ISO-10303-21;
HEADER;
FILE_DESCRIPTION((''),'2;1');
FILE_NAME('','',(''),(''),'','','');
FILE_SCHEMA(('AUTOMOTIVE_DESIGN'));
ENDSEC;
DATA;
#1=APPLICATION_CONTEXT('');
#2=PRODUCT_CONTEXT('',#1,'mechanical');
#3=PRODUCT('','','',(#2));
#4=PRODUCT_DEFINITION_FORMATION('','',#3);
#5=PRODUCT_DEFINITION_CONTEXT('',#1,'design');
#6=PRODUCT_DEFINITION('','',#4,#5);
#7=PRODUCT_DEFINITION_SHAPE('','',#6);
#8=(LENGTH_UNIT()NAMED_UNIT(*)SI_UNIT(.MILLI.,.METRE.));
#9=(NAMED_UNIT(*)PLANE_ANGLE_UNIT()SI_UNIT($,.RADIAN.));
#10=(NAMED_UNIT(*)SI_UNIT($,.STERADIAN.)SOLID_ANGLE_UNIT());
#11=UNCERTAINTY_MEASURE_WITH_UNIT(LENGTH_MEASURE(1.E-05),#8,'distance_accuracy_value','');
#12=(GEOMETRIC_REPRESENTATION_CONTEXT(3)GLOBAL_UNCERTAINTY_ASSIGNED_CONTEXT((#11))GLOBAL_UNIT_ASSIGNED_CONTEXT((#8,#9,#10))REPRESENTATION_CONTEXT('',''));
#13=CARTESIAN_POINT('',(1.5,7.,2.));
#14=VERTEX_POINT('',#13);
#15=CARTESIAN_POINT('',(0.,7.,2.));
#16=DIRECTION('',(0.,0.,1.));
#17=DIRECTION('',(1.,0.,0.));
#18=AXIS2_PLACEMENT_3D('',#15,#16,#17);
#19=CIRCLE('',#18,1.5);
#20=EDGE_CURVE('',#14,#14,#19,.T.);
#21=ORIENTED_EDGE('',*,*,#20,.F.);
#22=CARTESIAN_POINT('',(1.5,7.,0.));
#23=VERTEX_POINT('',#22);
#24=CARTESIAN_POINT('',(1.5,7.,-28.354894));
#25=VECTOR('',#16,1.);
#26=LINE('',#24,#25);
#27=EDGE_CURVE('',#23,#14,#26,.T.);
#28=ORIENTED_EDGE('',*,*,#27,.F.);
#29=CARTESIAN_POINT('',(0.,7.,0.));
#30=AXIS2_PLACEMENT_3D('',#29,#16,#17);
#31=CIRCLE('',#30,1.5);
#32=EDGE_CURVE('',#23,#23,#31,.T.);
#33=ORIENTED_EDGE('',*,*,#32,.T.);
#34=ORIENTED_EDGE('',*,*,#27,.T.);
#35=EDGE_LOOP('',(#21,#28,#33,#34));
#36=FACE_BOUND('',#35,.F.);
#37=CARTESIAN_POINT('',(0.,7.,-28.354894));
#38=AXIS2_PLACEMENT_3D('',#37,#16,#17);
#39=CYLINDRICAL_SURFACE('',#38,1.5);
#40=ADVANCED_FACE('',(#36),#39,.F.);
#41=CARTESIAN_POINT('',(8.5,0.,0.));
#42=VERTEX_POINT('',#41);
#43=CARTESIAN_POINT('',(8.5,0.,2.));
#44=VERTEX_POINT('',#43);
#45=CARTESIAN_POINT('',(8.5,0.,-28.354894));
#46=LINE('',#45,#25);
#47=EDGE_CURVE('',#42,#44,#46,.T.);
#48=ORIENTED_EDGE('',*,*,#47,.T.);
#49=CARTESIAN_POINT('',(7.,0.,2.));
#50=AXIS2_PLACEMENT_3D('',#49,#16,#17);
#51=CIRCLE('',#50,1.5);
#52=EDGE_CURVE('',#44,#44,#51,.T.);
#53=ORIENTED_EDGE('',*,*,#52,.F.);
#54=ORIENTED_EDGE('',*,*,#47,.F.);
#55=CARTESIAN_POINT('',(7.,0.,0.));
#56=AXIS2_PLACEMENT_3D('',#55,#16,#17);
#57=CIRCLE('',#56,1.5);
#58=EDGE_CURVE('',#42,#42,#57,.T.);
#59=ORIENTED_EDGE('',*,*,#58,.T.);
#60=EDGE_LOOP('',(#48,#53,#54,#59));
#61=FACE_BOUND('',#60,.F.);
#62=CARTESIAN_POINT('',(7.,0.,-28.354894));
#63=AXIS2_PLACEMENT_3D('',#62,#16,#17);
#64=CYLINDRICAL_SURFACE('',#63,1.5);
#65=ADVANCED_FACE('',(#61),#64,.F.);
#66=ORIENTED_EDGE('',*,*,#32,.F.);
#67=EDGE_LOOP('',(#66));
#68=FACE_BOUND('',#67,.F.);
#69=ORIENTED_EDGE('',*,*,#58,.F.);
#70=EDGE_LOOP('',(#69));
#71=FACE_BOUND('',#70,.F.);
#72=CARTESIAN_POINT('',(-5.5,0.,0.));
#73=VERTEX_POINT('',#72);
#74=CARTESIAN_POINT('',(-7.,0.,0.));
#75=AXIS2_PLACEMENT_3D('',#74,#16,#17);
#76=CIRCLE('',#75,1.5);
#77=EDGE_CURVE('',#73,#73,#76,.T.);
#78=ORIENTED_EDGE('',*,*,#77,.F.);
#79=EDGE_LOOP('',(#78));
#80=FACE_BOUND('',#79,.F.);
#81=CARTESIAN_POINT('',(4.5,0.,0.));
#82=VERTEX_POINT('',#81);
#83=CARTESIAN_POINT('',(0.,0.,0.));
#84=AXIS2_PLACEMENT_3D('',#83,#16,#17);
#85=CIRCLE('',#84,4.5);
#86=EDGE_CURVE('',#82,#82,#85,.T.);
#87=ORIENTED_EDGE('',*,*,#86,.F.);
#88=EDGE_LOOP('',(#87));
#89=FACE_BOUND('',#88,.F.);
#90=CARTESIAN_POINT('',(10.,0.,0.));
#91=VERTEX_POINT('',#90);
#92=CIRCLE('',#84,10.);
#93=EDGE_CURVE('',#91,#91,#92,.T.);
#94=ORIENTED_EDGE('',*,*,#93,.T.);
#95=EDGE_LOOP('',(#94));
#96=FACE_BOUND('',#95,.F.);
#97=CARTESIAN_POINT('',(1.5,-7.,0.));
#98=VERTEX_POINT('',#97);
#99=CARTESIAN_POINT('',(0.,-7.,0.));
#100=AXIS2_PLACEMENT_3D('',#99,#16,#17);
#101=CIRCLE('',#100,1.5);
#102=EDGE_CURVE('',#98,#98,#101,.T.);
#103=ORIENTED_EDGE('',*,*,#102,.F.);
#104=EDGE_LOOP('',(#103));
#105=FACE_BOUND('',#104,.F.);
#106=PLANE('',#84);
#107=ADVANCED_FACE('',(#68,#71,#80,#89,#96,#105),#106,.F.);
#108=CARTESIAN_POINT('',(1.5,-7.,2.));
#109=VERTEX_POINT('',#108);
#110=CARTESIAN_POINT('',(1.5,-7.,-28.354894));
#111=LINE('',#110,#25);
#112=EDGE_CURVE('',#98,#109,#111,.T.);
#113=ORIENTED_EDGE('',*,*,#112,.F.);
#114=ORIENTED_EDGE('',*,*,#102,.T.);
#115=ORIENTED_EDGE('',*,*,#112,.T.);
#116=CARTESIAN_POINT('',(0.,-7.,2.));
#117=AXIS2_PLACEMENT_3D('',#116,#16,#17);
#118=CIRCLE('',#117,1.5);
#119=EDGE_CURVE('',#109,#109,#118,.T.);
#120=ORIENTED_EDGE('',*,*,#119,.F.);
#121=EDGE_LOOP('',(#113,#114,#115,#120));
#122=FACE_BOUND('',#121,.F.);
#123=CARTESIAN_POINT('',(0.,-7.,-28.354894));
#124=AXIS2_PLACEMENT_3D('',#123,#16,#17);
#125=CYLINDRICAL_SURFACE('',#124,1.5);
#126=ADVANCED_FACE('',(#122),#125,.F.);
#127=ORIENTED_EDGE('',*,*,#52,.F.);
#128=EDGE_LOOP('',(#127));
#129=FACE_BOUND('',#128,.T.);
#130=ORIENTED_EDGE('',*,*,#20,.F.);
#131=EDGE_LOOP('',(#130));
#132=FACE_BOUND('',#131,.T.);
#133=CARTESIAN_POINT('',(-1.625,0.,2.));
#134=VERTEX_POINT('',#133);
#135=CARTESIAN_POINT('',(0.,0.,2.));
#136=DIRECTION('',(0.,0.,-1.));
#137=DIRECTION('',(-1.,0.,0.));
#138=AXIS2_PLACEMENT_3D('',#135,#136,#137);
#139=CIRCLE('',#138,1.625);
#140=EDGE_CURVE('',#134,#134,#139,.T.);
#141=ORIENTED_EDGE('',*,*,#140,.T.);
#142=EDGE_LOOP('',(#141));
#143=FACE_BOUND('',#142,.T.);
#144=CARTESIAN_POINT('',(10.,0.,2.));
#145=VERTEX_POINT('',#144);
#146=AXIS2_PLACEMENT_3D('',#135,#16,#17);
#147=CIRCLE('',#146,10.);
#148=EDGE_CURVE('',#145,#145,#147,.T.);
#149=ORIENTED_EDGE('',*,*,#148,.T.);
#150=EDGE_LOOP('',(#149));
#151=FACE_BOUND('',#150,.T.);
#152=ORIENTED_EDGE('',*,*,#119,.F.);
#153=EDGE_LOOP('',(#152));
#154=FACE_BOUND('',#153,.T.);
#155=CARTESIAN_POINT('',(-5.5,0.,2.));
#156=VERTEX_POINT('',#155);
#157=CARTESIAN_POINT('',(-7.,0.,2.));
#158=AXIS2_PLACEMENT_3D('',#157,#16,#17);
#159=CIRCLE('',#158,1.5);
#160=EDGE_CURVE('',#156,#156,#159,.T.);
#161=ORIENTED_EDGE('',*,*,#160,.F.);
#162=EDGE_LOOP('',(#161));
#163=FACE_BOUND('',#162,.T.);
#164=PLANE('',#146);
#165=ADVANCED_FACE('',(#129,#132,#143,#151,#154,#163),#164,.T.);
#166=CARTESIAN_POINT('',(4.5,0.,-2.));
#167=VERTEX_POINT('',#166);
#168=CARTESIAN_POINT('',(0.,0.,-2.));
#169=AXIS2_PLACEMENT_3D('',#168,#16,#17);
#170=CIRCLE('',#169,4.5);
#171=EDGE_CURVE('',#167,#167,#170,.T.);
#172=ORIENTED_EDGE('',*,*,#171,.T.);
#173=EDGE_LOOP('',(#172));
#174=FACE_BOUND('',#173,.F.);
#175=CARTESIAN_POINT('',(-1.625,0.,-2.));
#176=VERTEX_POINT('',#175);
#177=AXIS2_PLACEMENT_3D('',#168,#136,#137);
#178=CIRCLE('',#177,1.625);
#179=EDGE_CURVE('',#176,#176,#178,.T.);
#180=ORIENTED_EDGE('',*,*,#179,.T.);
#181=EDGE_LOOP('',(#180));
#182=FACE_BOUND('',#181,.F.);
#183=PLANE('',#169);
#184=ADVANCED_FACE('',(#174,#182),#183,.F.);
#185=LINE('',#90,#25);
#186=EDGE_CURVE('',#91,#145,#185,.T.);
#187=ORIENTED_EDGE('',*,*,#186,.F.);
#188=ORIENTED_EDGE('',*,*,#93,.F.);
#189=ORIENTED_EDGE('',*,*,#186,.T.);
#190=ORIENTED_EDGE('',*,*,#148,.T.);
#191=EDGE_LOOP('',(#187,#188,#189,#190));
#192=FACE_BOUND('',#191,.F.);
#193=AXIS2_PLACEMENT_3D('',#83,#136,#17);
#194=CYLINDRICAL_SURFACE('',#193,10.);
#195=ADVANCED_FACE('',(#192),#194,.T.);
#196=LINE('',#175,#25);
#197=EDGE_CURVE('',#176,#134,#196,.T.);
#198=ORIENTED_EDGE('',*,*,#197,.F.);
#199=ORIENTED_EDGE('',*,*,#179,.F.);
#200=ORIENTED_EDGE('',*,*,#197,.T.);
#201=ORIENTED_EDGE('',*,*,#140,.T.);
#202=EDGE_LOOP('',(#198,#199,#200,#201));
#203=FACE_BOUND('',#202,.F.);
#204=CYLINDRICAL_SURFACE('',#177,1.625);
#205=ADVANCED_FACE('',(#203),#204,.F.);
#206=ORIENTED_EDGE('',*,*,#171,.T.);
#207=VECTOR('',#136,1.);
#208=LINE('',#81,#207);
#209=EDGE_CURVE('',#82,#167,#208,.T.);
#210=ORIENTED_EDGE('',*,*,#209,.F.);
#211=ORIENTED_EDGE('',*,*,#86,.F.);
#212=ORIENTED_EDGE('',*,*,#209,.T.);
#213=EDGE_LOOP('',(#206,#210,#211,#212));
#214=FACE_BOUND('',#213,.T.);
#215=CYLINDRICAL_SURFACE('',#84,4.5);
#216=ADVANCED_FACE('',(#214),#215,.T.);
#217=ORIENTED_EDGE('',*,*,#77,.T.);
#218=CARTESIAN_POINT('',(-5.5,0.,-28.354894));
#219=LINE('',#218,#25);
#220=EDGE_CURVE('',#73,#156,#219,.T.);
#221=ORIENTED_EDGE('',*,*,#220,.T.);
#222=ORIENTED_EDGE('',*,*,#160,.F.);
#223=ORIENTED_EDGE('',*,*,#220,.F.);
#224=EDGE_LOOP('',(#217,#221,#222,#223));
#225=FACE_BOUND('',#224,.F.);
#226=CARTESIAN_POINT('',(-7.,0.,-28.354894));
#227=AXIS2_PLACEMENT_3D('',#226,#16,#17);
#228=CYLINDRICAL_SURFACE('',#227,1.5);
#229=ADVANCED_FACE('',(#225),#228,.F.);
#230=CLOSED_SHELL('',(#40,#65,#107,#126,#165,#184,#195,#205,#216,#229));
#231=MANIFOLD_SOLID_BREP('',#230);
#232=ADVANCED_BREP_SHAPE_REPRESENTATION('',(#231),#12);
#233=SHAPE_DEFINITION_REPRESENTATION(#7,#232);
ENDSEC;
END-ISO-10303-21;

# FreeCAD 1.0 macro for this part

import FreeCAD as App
import Part
import Sketcher
Q = App.Units.Quantity

doc = App.newDocument("Part")
body = doc.addObject("PartDesign::Body", "Body")

# Sketch on XY plane
sketch1 = body.newObject("Sketcher::SketchObject", "Sketch")
sketch1.AttachmentSupport = (doc.getObject("XY_Plane"), [""])
sketch1.MapMode = "FlatFace"
sketch1.addGeometry(Part.Circle(App.Vector(0, 0, 0), App.Vector(0, 0, 1), 10), False)
sketch1.addConstraint(Sketcher.Constraint("Coincident", 0, 3, -1, 1))
sketch1.addConstraint(Sketcher.Constraint("Diameter", 0, Q("20 mm")))
pad1 = body.newObject("PartDesign::Pad", "Pad")
pad1.Profile = sketch1
pad1.Length = 2

# Sketch on XY plane
sketch2 = body.newObject("Sketcher::SketchObject", "Sketch001")
sketch2.AttachmentSupport = (doc.getObject("XY_Plane"), [""])
sketch2.MapMode = "FlatFace"
sketch2.addGeometry(Part.Circle(App.Vector(7, 0, 0), App.Vector(0, 0, 1), 1.5), False)
sketch2.addGeometry(Part.Circle(App.Vector(-7, 0, 0), App.Vector(0, 0, 1), 1.5), False)
sketch2.addGeometry(Part.Circle(App.Vector(0, -7, 0), App.Vector(0, 0, 1), 1.5), False)
sketch2.addGeometry(Part.Circle(App.Vector(0, 7, 0), App.Vector(0, 0, 1), 1.5), False)
sketch2.addConstraint(Sketcher.Constraint("Equal", 0, 1))
sketch2.addConstraint(Sketcher.Constraint("Equal", 1, 2))
sketch2.addConstraint(Sketcher.Constraint("Equal", 2, 3))
sketch2.addConstraint(Sketcher.Constraint("Symmetric", 0, 3, 1, 3, -1, 1))
sketch2.addConstraint(Sketcher.Constraint("Symmetric", 2, 3, 3, 3, -1, 1))
sketch2.addConstraint(Sketcher.Constraint("PointOnObject", 0, 3, -1))
sketch2.addConstraint(Sketcher.Constraint("PointOnObject", 2, 3, -2))
sketch2.addConstraint(Sketcher.Constraint("Diameter", 0, Q("3 mm")))
sketch2.addConstraint(Sketcher.Constraint("DistanceX", -1, 1, 0, 3, Q("7 mm")))
sketch2.addConstraint(Sketcher.Constraint("DistanceY", 2, 3, -1, 1, Q("7 mm")))
doc.recompute()
hole = body.newObject("PartDesign::Hole", "Hole")
hole.Profile = sketch2
hole.ThreadType = "None"
hole.Diameter = 3
hole.DepthType = "ThroughAll"
hole.Reversed = True

# Sketch on XY plane
sketch3 = body.newObject("Sketcher::SketchObject", "Sketch002")
sketch3.AttachmentSupport = (doc.getObject("XY_Plane"), [""])
sketch3.MapMode = "FlatFace"
sketch3.addGeometry(Part.Circle(App.Vector(0, 0, 0), App.Vector(0, 0, 1), 4.5), False)
sketch3.addConstraint(Sketcher.Constraint("Coincident", 0, 3, -1, 1))
sketch3.addConstraint(Sketcher.Constraint("Diameter", 0, Q("9 mm")))
pad2 = body.newObject("PartDesign::Pad", "Pad001")
pad2.Profile = sketch3
pad2.Length = 2
pad2.Reversed = True

# Sketch on XY plane
sketch4 = body.newObject("Sketcher::SketchObject", "Sketch003")
sketch4.AttachmentSupport = (doc.getObject("XY_Plane"), [""])
sketch4.MapMode = "FlatFace"
sketch4.AttachmentOffset = App.Placement(App.Vector(0, 0, -2), App.Rotation())
sketch4.addGeometry(Part.Circle(App.Vector(0, 0, 0), App.Vector(0, 0, 1), 1.6), False)
sketch4.addConstraint(Sketcher.Constraint("Coincident", 0, 3, -1, 1))
sketch4.addConstraint(Sketcher.Constraint("Diameter", 0, Q("3.25 mm")))
pocket1 = body.newObject("PartDesign::Pocket", "Pocket")
pocket1.Profile = sketch4
pocket1.Type = "ThroughAll"
pocket1.Reversed = True

doc.recompute()
